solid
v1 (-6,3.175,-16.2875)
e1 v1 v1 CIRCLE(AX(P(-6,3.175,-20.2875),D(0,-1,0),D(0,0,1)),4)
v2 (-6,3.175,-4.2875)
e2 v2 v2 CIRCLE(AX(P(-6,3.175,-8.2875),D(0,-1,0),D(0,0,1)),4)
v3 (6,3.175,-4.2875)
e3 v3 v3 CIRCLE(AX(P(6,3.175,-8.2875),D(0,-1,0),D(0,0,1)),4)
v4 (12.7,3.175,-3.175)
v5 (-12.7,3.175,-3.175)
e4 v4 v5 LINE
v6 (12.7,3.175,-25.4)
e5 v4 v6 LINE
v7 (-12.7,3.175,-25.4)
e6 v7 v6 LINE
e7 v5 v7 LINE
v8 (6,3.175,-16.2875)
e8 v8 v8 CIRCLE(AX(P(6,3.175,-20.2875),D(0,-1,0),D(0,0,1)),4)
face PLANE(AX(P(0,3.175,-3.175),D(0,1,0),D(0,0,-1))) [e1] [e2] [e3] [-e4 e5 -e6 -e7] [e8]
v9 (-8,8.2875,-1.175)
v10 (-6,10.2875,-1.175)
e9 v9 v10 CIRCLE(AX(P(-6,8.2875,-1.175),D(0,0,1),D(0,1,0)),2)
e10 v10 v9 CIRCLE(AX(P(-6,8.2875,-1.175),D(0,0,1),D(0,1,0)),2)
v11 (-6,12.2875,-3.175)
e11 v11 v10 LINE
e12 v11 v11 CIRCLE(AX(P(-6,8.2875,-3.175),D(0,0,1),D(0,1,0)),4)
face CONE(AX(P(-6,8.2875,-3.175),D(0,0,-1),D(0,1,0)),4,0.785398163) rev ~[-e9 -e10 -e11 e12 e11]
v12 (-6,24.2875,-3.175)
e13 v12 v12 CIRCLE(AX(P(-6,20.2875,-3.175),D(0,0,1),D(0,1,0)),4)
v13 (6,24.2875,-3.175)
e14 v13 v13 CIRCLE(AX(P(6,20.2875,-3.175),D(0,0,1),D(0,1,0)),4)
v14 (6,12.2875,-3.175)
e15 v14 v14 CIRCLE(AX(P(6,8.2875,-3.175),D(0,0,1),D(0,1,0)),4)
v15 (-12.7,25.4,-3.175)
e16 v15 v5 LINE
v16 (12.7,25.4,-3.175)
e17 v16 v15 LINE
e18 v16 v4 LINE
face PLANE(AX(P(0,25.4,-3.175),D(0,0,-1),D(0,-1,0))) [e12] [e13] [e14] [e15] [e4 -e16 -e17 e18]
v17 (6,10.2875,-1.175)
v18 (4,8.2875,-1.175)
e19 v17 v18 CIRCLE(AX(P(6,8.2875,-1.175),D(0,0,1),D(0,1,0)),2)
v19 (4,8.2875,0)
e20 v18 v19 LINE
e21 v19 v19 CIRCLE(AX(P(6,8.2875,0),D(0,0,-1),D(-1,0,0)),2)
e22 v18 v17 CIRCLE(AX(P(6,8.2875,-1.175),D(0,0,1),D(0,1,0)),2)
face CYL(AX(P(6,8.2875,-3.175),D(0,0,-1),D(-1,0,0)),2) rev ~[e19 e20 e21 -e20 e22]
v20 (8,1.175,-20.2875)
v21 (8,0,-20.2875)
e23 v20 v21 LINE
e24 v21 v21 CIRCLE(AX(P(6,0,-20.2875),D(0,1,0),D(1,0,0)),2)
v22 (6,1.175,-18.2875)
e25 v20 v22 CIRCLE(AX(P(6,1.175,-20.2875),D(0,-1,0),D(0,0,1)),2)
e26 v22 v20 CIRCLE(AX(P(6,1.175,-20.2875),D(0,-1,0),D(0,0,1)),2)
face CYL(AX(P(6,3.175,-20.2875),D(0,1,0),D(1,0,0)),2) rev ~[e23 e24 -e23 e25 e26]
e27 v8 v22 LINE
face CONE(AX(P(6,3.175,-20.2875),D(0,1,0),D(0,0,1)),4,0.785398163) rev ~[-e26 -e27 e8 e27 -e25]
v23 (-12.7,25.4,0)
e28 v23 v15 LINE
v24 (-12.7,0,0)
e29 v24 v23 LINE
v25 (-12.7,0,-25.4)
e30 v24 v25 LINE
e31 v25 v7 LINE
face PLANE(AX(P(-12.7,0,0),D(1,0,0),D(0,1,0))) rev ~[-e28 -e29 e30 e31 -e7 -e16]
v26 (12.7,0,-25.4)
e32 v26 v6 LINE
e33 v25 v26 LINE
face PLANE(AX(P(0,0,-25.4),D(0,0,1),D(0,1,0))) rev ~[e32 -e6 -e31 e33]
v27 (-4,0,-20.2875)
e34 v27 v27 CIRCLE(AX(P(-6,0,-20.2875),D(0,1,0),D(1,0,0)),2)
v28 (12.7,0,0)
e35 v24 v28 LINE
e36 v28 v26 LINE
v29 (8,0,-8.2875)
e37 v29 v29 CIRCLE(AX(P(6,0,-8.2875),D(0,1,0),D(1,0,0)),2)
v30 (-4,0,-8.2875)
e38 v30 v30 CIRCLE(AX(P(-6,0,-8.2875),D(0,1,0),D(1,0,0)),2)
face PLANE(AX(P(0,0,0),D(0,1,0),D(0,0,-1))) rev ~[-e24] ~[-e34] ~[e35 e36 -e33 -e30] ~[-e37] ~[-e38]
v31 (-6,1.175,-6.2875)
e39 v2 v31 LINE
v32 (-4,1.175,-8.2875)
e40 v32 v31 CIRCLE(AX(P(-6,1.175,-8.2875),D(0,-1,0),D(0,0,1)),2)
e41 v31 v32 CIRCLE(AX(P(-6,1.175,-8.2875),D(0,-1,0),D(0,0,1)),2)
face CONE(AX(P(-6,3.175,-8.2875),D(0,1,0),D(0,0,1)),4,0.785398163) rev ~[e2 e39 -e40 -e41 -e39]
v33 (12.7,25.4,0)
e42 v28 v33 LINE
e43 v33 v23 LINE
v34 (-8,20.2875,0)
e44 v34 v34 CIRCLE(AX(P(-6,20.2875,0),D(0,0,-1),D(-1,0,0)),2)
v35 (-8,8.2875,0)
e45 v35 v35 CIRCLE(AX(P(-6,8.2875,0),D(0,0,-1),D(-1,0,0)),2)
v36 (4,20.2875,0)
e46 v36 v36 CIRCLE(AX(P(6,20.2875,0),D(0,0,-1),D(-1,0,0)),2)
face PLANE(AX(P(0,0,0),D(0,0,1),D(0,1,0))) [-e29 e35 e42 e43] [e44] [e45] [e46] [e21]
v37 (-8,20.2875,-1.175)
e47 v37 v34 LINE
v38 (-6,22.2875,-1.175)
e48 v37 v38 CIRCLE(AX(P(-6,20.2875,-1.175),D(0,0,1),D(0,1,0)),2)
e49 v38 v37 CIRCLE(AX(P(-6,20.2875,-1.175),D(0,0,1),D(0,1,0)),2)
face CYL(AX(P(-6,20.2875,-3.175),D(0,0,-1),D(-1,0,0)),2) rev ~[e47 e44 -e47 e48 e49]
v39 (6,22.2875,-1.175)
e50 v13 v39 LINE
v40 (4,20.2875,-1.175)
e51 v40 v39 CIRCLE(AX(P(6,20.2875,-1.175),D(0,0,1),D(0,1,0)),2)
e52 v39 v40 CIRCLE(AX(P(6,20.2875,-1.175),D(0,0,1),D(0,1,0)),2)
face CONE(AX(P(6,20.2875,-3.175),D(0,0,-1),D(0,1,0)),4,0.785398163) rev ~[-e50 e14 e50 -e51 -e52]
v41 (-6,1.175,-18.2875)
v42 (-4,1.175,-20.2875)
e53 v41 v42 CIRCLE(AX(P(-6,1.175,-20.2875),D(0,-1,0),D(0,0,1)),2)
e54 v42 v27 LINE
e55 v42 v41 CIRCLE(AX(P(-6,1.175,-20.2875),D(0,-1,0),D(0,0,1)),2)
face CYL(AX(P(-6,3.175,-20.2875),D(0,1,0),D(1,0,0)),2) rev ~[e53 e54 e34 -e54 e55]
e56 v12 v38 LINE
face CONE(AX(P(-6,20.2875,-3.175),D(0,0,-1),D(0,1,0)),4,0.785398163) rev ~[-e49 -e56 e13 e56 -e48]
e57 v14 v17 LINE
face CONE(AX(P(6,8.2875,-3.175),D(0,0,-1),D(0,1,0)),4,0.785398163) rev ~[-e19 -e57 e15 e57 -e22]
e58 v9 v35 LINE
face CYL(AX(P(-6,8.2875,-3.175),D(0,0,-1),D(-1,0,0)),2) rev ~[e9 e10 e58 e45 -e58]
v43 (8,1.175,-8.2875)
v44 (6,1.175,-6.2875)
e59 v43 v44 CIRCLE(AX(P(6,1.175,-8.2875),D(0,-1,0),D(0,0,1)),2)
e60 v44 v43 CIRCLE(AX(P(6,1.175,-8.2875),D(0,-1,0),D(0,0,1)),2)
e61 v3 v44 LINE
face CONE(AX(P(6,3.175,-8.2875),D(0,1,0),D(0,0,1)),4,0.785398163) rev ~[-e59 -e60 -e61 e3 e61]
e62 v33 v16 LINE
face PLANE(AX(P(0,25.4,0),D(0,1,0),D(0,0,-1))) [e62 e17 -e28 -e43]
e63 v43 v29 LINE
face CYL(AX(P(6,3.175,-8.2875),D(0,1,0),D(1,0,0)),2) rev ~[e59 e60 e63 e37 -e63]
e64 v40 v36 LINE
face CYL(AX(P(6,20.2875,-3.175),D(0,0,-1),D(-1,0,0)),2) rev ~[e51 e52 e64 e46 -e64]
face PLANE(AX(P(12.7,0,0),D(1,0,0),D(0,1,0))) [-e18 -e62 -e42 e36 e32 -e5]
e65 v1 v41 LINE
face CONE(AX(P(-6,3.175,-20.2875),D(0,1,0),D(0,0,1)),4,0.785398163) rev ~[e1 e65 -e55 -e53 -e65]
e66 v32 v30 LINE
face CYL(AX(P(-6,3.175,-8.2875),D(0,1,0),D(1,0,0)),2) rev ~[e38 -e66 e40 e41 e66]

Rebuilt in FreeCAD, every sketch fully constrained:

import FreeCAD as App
import Part
import Sketcher
from FreeCAD import Vector
Q = App.Units.Quantity

doc = App.newDocument("Part")
body = doc.addObject("PartDesign::Body", "Body")

sketch1 = doc.addObject("Sketcher::SketchObject", "Sketch")
body.addObject(sketch1)
sketch1.AttachmentSupport = (doc.YZ_Plane, [""])
sketch1.MapMode = "FlatFace"
sketch1.addGeometry([
    Part.LineSegment(Vector(25.4, 0, 0), Vector(0, 0, 0)),
    Part.LineSegment(Vector(0, 0, 0), Vector(0, -25.4, 0)),
    Part.LineSegment(Vector(0, -25.4, 0), Vector(3.175, -25.4, 0)),
    Part.LineSegment(Vector(3.175, -25.4, 0), Vector(3.175, -3.175, 0)),
    Part.LineSegment(Vector(3.175, -3.175, 0), Vector(25.4, -3.175, 0)),
    Part.LineSegment(Vector(25.4, -3.175, 0), Vector(25.4, 0, 0)),
], False)
sketch1.addConstraint([
    Sketcher.Constraint("Coincident", 0, 2, 1, 1),
    Sketcher.Constraint("Coincident", 1, 2, 2, 1),
    Sketcher.Constraint("Coincident", 2, 2, 3, 1),
    Sketcher.Constraint("Coincident", 3, 2, 4, 1),
    Sketcher.Constraint("Coincident", 4, 2, 5, 1),
    Sketcher.Constraint("Coincident", 5, 2, 0, 1),
    Sketcher.Constraint("Horizontal", 0),
    Sketcher.Constraint("Vertical", 1),
    Sketcher.Constraint("Horizontal", 2),
    Sketcher.Constraint("Vertical", 3),
    Sketcher.Constraint("Horizontal", 4),
    Sketcher.Constraint("Vertical", 5),
    Sketcher.Constraint("Coincident", 0, 2, -1, 1),
    Sketcher.Constraint("Equal", 0, 1),
    Sketcher.Constraint("Equal", 4, 3),
    Sketcher.Constraint("DistanceX", 0, 2, 0, 1, Q("1 in")),
    Sketcher.Constraint("DistanceX", 2, 1, 2, 2, Q("0.125 in")),
])
pad1 = doc.addObject("PartDesign::Pad", "Pad")
body.addObject(pad1)
pad1.Profile = sketch1
pad1.Length = Q("1 in")
pad1.Midplane = True

sketch2 = doc.addObject("Sketcher::SketchObject", "Sketch001")
body.addObject(sketch2)
sketch2.AttachmentSupport = (doc.XZ_Plane, [""])
sketch2.MapMode = "FlatFace"
sketch2.AttachmentOffset = App.Placement(Vector(0, 0, -0.125 * 25.4), App.Rotation())
sketch2.addGeometry(Part.Circle(Vector(6, -20.2875, 0), Vector(0, 0, 1), 2), False)
sketch2.addConstraint([
    Sketcher.Constraint("Diameter", 0, Q("4 mm")),
    Sketcher.Constraint("DistanceX", -1, 1, 0, 3, Q("6 mm")),
    Sketcher.Constraint("DistanceY", 0, 3, -1, 1, Q("20.2875 mm")),
])
pocket1 = doc.addObject("PartDesign::Pocket", "Pocket")
body.addObject(pocket1)
pocket1.Profile = sketch2
pocket1.Type = "ThroughAll"
pocket1.Reversed = True

sketch3 = doc.addObject("Sketcher::SketchObject", "Sketch002")
body.addObject(sketch3)
sketch3.AttachmentSupport = (doc.XY_Plane, [""])
sketch3.MapMode = "FlatFace"
sketch3.AttachmentOffset = App.Placement(Vector(0, 0, -0.125 * 25.4), App.Rotation())
sketch3.addGeometry(Part.Circle(Vector(-6, 20.2875, 0), Vector(0, 0, 1), 2), False)
sketch3.addConstraint([
    Sketcher.Constraint("Diameter", 0, Q("4 mm")),
    Sketcher.Constraint("DistanceX", 0, 3, -1, 1, Q("6 mm")),
    Sketcher.Constraint("DistanceY", -1, 1, 0, 3, Q("20.2875 mm")),
])
pocket2 = doc.addObject("PartDesign::Pocket", "Pocket001")
body.addObject(pocket2)
pocket2.Profile = sketch3
pocket2.Type = "ThroughAll"
pocket2.Reversed = True

sketch4 = doc.addObject("Sketcher::SketchObject", "Sketch003")
body.addObject(sketch4)
sketch4.AttachmentSupport = (doc.XZ_Plane, [""])
sketch4.MapMode = "FlatFace"
sketch4.AttachmentOffset = App.Placement(Vector(0, 0, -0.125 * 25.4), App.Rotation())
sketch4.addGeometry([
    Part.Circle(Vector(-6, -20.2875, 0), Vector(0, 0, 1), 2),
    Part.Circle(Vector(-6, -8.2875, 0), Vector(0, 0, 1), 2),
    Part.Circle(Vector(6, -8.2875, 0), Vector(0, 0, 1), 2),
], False)
sketch4.addConstraint([
    Sketcher.Constraint("Equal", 0, 1),
    Sketcher.Constraint("Equal", 1, 2),
    Sketcher.Constraint("Symmetric", 1, 3, 2, 3, -2),
    Sketcher.Constraint("Vertical", 0, 3, 1, 3),
    Sketcher.Constraint("Diameter", 0, Q("4 mm")),
    Sketcher.Constraint("DistanceX", 0, 3, -1, 1, Q("6 mm")),
    Sketcher.Constraint("DistanceY", 0, 3, -1, 1, Q("20.2875 mm")),
    Sketcher.Constraint("DistanceY", 1, 3, -1, 1, Q("8.2875 mm")),
])
pocket3 = doc.addObject("PartDesign::Pocket", "Pocket002")
body.addObject(pocket3)
pocket3.Profile = sketch4
pocket3.Type = "ThroughAll"
pocket3.Reversed = True

sketch5 = doc.addObject("Sketcher::SketchObject", "Sketch004")
body.addObject(sketch5)
sketch5.AttachmentSupport = (doc.XY_Plane, [""])
sketch5.MapMode = "FlatFace"
sketch5.AttachmentOffset = App.Placement(Vector(0, 0, -0.125 * 25.4), App.Rotation())
sketch5.addGeometry([
    Part.Circle(Vector(6, 20.2875, 0), Vector(0, 0, 1), 2),
    Part.Circle(Vector(6, 8.2875, 0), Vector(0, 0, 1), 2),
    Part.Circle(Vector(-6, 8.2875, 0), Vector(0, 0, 1), 2),
], False)
sketch5.addConstraint([
    Sketcher.Constraint("Equal", 0, 1),
    Sketcher.Constraint("Equal", 1, 2),
    Sketcher.Constraint("Symmetric", 1, 3, 2, 3, -2),
    Sketcher.Constraint("Vertical", 0, 3, 1, 3),
    Sketcher.Constraint("Diameter", 0, Q("4 mm")),
    Sketcher.Constraint("DistanceX", -1, 1, 0, 3, Q("6 mm")),
    Sketcher.Constraint("DistanceY", -1, 1, 0, 3, Q("20.2875 mm")),
    Sketcher.Constraint("DistanceY", -1, 1, 1, 3, Q("8.2875 mm")),
])
pocket4 = doc.addObject("PartDesign::Pocket", "Pocket003")
body.addObject(pocket4)
pocket4.Profile = sketch5
pocket4.Type = "ThroughAll"
pocket4.Reversed = True

sketch6 = doc.addObject("Sketcher::SketchObject", "Sketch005")
body.addObject(sketch6)
sketch6.AttachmentSupport = (doc.XZ_Plane, [""])
sketch6.MapMode = "FlatFace"
sketch6.AttachmentOffset = App.Placement(Vector(0, 0, -0.125 * 25.4), App.Rotation())
sketch6.addGeometry([
    Part.Circle(Vector(6, -8.2875, 0), Vector(0, 0, 1), 2),
    Part.Circle(Vector(-6, -8.2875, 0), Vector(0, 0, 1), 2),
    Part.Circle(Vector(-6, -20.2875, 0), Vector(0, 0, 1), 2),
    Part.Circle(Vector(6, -20.2875, 0), Vector(0, 0, 1), 2),
], False)
sketch6.addConstraint([
    Sketcher.Constraint("Equal", 0, 1),
    Sketcher.Constraint("Equal", 1, 2),
    Sketcher.Constraint("Equal", 2, 3),
    Sketcher.Constraint("Symmetric", 0, 3, 1, 3, -2),
    Sketcher.Constraint("Symmetric", 2, 3, 3, 3, -2),
    Sketcher.Constraint("Vertical", 1, 3, 2, 3),
    Sketcher.Constraint("Diameter", 0, Q("4 mm")),
    Sketcher.Constraint("DistanceX", -1, 1, 0, 3, Q("6 mm")),
    Sketcher.Constraint("DistanceY", 0, 3, -1, 1, Q("8.2875 mm")),
    Sketcher.Constraint("DistanceY", 2, 3, -1, 1, Q("20.2875 mm")),
])
doc.recompute()
hole = doc.addObject("PartDesign::Hole", "Hole")
body.addObject(hole)
hole.Profile = sketch6
hole.ThreadType = "None"
hole.Diameter = 4
hole.DepthType = "ThroughAll"
hole.HoleCutType = "Countersink"
hole.HoleCutDiameter = 8
hole.HoleCutCountersinkAngle = 90
hole.Reversed = True

sketch7 = doc.addObject("Sketcher::SketchObject", "Sketch006")
body.addObject(sketch7)
sketch7.AttachmentSupport = (doc.XY_Plane, [""])
sketch7.MapMode = "FlatFace"
sketch7.AttachmentOffset = App.Placement(Vector(0, 0, -0.125 * 25.4), App.Rotation())
sketch7.addGeometry([
    Part.Circle(Vector(6, 8.2875, 0), Vector(0, 0, 1), 2),
    Part.Circle(Vector(-6, 8.2875, 0), Vector(0, 0, 1), 2),
    Part.Circle(Vector(-6, 20.2875, 0), Vector(0, 0, 1), 2),
    Part.Circle(Vector(6, 20.2875, 0), Vector(0, 0, 1), 2),
], False)
sketch7.addConstraint([
    Sketcher.Constraint("Equal", 0, 1),
    Sketcher.Constraint("Equal", 1, 2),
    Sketcher.Constraint("Equal", 2, 3),
    Sketcher.Constraint("Symmetric", 0, 3, 1, 3, -2),
    Sketcher.Constraint("Symmetric", 2, 3, 3, 3, -2),
    Sketcher.Constraint("Vertical", 1, 3, 2, 3),
    Sketcher.Constraint("Diameter", 0, Q("4 mm")),
    Sketcher.Constraint("DistanceX", -1, 1, 0, 3, Q("6 mm")),
    Sketcher.Constraint("DistanceY", -1, 1, 0, 3, Q("8.2875 mm")),
    Sketcher.Constraint("DistanceY", -1, 1, 2, 3, Q("20.2875 mm")),
])
doc.recompute()
hole2 = doc.addObject("PartDesign::Hole", "Hole001")
body.addObject(hole2)
hole2.Profile = sketch7
hole2.ThreadType = "None"
hole2.Diameter = 4
hole2.DepthType = "ThroughAll"
hole2.HoleCutType = "Countersink"
hole2.HoleCutDiameter = 8
hole2.HoleCutCountersinkAngle = 90
hole2.Reversed = True

doc.recompute()
